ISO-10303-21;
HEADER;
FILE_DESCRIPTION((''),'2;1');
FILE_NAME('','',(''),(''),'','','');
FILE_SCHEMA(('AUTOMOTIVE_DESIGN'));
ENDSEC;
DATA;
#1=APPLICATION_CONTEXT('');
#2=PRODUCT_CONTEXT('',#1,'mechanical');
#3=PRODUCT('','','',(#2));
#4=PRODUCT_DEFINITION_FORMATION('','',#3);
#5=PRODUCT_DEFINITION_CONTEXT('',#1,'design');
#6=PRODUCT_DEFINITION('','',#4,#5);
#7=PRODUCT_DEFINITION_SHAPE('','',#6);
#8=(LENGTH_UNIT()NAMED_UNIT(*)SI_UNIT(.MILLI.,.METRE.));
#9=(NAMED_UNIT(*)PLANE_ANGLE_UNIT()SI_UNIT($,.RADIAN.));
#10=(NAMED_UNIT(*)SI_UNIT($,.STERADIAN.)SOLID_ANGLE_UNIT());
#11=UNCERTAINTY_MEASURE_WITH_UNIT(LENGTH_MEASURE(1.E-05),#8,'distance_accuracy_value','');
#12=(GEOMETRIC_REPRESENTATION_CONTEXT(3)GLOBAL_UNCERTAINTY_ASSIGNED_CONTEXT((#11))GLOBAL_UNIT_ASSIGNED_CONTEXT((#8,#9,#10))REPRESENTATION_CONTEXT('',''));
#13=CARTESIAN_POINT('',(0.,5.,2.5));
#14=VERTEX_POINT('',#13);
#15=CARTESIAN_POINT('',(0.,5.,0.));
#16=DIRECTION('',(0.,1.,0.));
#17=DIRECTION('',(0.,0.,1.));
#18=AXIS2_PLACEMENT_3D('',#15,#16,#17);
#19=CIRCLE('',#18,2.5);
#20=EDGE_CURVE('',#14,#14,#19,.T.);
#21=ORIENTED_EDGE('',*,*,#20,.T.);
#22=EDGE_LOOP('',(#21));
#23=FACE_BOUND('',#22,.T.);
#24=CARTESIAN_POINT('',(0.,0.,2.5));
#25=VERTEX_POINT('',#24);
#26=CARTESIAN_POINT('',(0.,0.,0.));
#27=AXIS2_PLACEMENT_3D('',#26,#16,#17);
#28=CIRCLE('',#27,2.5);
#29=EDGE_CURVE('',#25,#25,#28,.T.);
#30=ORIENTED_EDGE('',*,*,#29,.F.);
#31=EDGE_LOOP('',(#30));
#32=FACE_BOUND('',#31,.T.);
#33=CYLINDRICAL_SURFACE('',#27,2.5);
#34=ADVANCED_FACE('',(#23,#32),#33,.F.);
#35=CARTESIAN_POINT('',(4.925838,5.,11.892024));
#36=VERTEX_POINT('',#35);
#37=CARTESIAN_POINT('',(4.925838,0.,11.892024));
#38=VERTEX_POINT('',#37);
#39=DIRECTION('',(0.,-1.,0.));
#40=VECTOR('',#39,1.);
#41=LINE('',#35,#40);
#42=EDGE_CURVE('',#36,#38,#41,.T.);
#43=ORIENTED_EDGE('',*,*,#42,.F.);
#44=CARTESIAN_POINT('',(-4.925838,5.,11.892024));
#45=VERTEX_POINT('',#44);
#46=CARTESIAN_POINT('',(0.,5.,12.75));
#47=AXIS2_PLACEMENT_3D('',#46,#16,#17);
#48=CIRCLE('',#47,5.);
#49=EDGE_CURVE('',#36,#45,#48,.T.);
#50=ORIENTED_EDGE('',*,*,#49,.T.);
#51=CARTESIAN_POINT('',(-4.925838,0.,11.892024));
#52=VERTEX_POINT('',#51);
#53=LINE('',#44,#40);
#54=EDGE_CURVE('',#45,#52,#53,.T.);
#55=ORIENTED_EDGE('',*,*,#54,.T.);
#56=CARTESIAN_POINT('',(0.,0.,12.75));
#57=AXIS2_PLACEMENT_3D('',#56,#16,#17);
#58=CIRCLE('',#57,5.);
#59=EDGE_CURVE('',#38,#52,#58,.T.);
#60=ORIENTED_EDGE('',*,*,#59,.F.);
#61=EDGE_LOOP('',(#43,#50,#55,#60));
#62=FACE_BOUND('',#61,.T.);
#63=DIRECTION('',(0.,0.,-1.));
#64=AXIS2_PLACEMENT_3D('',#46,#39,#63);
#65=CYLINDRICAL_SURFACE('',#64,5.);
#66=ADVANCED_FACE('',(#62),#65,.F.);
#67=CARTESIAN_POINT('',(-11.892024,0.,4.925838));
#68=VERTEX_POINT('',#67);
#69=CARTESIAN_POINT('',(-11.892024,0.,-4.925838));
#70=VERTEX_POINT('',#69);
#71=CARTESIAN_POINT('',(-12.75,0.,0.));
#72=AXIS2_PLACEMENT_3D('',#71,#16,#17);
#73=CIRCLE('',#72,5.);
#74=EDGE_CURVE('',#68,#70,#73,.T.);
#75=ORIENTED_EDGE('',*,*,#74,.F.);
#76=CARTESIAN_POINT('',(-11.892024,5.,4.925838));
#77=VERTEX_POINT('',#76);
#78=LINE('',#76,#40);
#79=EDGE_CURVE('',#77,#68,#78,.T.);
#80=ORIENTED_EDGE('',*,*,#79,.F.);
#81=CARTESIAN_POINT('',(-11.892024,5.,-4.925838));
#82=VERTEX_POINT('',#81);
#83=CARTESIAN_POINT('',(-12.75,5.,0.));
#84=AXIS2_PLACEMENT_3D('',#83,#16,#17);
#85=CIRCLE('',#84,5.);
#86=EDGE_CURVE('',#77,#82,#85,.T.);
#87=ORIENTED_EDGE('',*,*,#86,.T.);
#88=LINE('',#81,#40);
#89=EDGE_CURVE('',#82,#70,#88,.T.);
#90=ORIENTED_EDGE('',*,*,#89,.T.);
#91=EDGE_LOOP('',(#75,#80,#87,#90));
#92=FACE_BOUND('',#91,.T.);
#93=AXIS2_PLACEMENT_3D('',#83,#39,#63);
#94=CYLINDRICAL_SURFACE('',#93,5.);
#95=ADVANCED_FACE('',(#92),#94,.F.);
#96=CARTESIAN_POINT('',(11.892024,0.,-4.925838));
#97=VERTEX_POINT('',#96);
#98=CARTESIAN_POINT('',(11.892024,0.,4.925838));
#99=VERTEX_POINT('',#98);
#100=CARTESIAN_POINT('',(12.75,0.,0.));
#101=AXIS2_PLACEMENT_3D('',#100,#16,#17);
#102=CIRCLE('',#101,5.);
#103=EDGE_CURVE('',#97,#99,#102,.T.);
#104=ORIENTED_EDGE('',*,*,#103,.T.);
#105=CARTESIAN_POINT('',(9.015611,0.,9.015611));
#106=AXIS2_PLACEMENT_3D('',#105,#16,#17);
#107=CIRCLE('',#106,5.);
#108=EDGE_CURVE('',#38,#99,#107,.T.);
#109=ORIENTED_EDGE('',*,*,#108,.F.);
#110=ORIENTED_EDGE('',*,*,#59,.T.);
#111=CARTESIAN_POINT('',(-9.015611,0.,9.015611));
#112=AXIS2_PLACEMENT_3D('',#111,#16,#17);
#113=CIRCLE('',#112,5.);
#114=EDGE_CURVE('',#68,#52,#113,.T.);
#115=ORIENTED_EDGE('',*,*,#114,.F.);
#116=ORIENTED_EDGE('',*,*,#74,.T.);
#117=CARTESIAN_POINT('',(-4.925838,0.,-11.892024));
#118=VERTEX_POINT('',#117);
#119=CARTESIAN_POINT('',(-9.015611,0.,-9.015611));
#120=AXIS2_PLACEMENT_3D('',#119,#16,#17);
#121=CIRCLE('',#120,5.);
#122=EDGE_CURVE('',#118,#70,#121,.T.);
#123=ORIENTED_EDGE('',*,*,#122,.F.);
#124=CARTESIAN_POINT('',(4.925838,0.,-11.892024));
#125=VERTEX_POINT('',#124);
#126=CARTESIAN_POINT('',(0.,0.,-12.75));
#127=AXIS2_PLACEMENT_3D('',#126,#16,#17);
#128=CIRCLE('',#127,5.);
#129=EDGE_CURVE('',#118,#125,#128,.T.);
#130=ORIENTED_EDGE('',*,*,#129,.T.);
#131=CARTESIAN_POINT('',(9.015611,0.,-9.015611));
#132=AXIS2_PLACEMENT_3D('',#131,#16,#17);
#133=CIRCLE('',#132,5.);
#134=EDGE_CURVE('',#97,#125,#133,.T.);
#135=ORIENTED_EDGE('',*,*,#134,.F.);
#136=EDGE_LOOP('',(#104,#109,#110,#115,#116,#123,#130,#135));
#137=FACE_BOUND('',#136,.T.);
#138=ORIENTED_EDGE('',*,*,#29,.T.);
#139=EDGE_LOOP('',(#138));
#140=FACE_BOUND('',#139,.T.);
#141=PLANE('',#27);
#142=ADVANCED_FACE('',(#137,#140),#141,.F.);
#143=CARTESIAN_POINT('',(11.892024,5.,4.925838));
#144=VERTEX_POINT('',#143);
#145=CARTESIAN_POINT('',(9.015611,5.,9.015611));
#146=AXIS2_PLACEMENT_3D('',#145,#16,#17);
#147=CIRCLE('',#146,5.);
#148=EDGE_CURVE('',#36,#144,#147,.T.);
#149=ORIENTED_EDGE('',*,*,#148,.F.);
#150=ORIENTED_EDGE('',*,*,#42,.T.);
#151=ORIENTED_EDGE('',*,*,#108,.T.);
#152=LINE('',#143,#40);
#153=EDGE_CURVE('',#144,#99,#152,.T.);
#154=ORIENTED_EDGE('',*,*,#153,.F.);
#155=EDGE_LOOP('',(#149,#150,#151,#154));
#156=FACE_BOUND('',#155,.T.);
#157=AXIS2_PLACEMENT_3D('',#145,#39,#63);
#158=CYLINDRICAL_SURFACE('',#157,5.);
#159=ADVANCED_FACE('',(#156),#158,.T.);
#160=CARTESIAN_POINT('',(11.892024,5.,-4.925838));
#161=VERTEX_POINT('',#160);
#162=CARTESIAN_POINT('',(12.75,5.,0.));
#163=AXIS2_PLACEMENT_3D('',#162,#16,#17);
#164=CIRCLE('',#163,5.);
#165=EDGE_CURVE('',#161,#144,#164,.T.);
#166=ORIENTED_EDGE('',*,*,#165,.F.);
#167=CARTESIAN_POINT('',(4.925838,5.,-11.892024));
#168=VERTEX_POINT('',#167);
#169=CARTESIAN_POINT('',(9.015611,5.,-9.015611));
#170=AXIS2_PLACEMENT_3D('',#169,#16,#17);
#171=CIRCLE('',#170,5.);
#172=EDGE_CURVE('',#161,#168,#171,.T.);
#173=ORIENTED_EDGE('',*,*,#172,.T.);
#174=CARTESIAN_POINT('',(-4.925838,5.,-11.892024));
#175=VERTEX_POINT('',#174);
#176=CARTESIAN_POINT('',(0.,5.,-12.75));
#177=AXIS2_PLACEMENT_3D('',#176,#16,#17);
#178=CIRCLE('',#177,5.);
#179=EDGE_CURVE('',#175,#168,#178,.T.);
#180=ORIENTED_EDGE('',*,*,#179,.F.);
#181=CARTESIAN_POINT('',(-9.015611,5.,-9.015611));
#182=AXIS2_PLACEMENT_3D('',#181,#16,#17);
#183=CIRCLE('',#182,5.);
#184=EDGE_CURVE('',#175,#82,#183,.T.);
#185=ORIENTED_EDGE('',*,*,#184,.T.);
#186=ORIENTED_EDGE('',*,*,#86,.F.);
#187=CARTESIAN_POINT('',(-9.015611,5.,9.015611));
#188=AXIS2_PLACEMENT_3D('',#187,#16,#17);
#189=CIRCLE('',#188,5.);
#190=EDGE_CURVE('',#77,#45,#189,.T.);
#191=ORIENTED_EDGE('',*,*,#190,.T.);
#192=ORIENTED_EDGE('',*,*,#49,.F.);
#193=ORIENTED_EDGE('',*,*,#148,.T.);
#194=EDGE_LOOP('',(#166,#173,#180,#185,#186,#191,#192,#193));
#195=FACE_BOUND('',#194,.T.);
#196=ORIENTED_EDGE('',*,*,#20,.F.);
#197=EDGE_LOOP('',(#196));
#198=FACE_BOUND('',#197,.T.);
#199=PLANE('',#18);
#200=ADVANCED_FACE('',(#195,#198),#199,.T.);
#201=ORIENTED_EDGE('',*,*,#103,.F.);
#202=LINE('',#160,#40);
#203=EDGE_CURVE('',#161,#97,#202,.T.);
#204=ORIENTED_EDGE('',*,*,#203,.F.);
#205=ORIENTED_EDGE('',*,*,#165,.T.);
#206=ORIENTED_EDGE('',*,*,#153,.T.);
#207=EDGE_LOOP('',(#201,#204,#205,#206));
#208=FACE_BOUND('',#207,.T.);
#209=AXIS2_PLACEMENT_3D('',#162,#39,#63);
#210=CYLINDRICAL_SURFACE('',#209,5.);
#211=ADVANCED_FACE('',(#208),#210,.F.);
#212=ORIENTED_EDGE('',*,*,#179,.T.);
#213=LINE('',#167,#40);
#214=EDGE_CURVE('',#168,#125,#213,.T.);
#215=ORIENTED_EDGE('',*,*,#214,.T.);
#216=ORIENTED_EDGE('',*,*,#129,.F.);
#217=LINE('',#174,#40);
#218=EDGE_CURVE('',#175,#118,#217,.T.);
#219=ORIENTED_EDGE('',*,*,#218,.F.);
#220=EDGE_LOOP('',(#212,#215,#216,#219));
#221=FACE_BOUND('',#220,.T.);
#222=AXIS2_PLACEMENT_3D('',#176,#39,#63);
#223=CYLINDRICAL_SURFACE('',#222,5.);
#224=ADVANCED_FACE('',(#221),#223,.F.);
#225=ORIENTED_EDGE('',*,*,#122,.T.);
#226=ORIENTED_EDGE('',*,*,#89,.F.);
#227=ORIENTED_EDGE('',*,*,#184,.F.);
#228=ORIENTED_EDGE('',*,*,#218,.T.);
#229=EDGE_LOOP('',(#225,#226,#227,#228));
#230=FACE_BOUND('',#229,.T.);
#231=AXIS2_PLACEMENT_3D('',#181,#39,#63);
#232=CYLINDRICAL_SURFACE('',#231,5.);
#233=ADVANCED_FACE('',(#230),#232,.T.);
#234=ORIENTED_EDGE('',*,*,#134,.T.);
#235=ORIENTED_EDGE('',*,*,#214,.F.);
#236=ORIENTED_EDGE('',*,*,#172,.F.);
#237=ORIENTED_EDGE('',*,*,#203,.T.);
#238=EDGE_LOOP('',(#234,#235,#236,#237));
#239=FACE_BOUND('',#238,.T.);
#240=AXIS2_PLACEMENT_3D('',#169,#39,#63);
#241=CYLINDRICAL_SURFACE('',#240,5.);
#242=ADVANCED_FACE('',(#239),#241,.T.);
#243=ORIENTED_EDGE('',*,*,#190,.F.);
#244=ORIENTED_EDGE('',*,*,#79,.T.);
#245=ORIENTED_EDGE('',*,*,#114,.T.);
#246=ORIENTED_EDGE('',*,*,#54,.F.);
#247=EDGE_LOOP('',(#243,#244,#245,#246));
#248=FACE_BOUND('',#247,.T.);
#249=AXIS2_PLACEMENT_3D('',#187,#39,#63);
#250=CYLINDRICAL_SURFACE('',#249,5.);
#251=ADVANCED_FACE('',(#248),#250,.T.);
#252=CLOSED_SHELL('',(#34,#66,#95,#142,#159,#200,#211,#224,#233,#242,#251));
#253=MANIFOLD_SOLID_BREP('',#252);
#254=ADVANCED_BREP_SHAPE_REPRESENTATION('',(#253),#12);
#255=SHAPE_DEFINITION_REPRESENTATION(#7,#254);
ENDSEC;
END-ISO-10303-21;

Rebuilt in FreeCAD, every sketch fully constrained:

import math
import FreeCAD as App
import Part
import Sketcher
from FreeCAD import Vector
Q = App.Units.Quantity

doc = App.newDocument("Part")
params = doc.addObject("Spreadsheet::Sheet", "Params")
for row, (alias, value) in enumerate([
    ("sketch1_radius", "5 mm"),
    ("pad1_length", "5 mm"),
    ("sketch2_diameter", "5 mm"),
    ("pocket1_length", "5 mm"),
], start=1):
    params.set(f"A{row}", alias)
    params.set(f"B{row}", "=" + value)
    params.setAlias(f"B{row}", alias)

body = doc.addObject("PartDesign::Body", "Body")

# Sketch on XZ plane
sketch1 = body.newObject("Sketcher::SketchObject", "Sketch")
sketch1.AttachmentSupport = (doc.getObject("XZ_Plane"), [""])
sketch1.MapMode = "FlatFace"
sketch1.addGeometry(Part.ArcOfCircle(Part.Circle(Vector(9, -9, 0), Vector(0, 0, 1), 5), math.radians(-145), math.radians(55)), False)
sketch1.addGeometry(Part.ArcOfCircle(Part.Circle(Vector(0, -12.7, 0), Vector(0, 0, 1), 5), math.radians(10), math.radians(170)), False)
sketch1.addGeometry(Part.ArcOfCircle(Part.Circle(Vector(-9, -9, 0), Vector(0, 0, 1), 5), math.radians(125), math.radians(325)), False)
sketch1.addGeometry(Part.ArcOfCircle(Part.Circle(Vector(-12.7, 0, 0), Vector(0, 0, 1), 5), math.radians(-80), math.radians(80)), False)
sketch1.addGeometry(Part.ArcOfCircle(Part.Circle(Vector(-9, 9, 0), Vector(0, 0, 1), 5), math.radians(35), math.radians(235)), False)
sketch1.addGeometry(Part.ArcOfCircle(Part.Circle(Vector(0, 12.7, 0), Vector(0, 0, 1), 5), math.radians(-170), math.radians(-10)), False)
sketch1.addGeometry(Part.ArcOfCircle(Part.Circle(Vector(9, 9, 0), Vector(0, 0, 1), 5), math.radians(-55), math.radians(145)), False)
sketch1.addGeometry(Part.ArcOfCircle(Part.Circle(Vector(12.7, 0, 0), Vector(0, 0, 1), 5), math.radians(100), math.radians(260)), False)
sketch1.addConstraint(Sketcher.Constraint("Coincident", 0, 1, 1, 1))
sketch1.addConstraint(Sketcher.Constraint("Coincident", 1, 2, 2, 2))
sketch1.addConstraint(Sketcher.Constraint("Coincident", 2, 1, 3, 1))
sketch1.addConstraint(Sketcher.Constraint("Coincident", 3, 2, 4, 2))
sketch1.addConstraint(Sketcher.Constraint("Coincident", 4, 1, 5, 1))
sketch1.addConstraint(Sketcher.Constraint("Coincident", 5, 2, 6, 2))
sketch1.addConstraint(Sketcher.Constraint("Coincident", 6, 1, 7, 1))
sketch1.addConstraint(Sketcher.Constraint("Coincident", 7, 2, 0, 2))
sketch1.addConstraint(Sketcher.Constraint("Equal", 0, 1))
sketch1.addConstraint(Sketcher.Constraint("Equal", 1, 2))
sketch1.addConstraint(Sketcher.Constraint("Equal", 2, 3))
sketch1.addConstraint(Sketcher.Constraint("Equal", 3, 4))
sketch1.addConstraint(Sketcher.Constraint("Equal", 4, 5))
sketch1.addConstraint(Sketcher.Constraint("Equal", 5, 6))
sketch1.addConstraint(Sketcher.Constraint("Equal", 6, 7))
sketch1.addConstraint(Sketcher.Constraint("Symmetric", 0, 3, 4, 3, -1, 1))
sketch1.addConstraint(Sketcher.Constraint("Symmetric", 1, 3, 5, 3, -1, 1))
sketch1.addConstraint(Sketcher.Constraint("Symmetric", 2, 3, 6, 3, -1, 1))
sketch1.addConstraint(Sketcher.Constraint("Symmetric", 3, 3, 7, 3, -1, 1))
sketch1.addConstraint(Sketcher.Constraint("Symmetric", 0, 3, 2, 3, -2))
sketch1.addConstraint(Sketcher.Constraint("PointOnObject", 1, 3, -2))
sketch1.addConstraint(Sketcher.Constraint("PointOnObject", 3, 3, -1))
sketch1.addConstraint(Sketcher.Constraint("Radius", 0, Q("5 mm")))
sketch1.addConstraint(Sketcher.Constraint("DistanceY", 1, 3, 5, 3, Q("25.5 mm")))
sketch1.addConstraint(Sketcher.Constraint("DistanceX", 3, 3, -1, 1, Q("12.75 mm")))
sketch1.addConstraint(Sketcher.Constraint("DistanceX", -1, 1, 0, 3, Q("9.015611 mm")))
sketch1.addConstraint(Sketcher.Constraint("DistanceY", 0, 3, -1, 1, Q("9.015611 mm")))
sketch1.setExpression("Constraints[22]", "Params.sketch1_radius")
pad1 = body.newObject("PartDesign::Pad", "Pad")
pad1.Profile = sketch1
pad1.setExpression("Length", "Params.pad1_length")
pad1.Reversed = True

# Sketch on XZ plane
sketch2 = body.newObject("Sketcher::SketchObject", "Sketch001")
sketch2.AttachmentSupport = (doc.getObject("XZ_Plane"), [""])
sketch2.MapMode = "FlatFace"
sketch2.AttachmentOffset = App.Placement(Vector(0, 0, -5), App.Rotation())
sketch2.addGeometry(Part.Circle(Vector(0, 0, 0), Vector(0, 0, 1), 2.5), False)
sketch2.addConstraint(Sketcher.Constraint("Coincident", 0, 3, -1, 1))
sketch2.addConstraint(Sketcher.Constraint("Diameter", 0, Q("5 mm")))
sketch2.setExpression("Constraints[1]", "Params.sketch2_diameter")
pocket1 = body.newObject("PartDesign::Pocket", "Pocket")
pocket1.Profile = sketch2
pocket1.setExpression("Length", "Params.pocket1_length")
pocket1.Reversed = True

doc.recompute()
